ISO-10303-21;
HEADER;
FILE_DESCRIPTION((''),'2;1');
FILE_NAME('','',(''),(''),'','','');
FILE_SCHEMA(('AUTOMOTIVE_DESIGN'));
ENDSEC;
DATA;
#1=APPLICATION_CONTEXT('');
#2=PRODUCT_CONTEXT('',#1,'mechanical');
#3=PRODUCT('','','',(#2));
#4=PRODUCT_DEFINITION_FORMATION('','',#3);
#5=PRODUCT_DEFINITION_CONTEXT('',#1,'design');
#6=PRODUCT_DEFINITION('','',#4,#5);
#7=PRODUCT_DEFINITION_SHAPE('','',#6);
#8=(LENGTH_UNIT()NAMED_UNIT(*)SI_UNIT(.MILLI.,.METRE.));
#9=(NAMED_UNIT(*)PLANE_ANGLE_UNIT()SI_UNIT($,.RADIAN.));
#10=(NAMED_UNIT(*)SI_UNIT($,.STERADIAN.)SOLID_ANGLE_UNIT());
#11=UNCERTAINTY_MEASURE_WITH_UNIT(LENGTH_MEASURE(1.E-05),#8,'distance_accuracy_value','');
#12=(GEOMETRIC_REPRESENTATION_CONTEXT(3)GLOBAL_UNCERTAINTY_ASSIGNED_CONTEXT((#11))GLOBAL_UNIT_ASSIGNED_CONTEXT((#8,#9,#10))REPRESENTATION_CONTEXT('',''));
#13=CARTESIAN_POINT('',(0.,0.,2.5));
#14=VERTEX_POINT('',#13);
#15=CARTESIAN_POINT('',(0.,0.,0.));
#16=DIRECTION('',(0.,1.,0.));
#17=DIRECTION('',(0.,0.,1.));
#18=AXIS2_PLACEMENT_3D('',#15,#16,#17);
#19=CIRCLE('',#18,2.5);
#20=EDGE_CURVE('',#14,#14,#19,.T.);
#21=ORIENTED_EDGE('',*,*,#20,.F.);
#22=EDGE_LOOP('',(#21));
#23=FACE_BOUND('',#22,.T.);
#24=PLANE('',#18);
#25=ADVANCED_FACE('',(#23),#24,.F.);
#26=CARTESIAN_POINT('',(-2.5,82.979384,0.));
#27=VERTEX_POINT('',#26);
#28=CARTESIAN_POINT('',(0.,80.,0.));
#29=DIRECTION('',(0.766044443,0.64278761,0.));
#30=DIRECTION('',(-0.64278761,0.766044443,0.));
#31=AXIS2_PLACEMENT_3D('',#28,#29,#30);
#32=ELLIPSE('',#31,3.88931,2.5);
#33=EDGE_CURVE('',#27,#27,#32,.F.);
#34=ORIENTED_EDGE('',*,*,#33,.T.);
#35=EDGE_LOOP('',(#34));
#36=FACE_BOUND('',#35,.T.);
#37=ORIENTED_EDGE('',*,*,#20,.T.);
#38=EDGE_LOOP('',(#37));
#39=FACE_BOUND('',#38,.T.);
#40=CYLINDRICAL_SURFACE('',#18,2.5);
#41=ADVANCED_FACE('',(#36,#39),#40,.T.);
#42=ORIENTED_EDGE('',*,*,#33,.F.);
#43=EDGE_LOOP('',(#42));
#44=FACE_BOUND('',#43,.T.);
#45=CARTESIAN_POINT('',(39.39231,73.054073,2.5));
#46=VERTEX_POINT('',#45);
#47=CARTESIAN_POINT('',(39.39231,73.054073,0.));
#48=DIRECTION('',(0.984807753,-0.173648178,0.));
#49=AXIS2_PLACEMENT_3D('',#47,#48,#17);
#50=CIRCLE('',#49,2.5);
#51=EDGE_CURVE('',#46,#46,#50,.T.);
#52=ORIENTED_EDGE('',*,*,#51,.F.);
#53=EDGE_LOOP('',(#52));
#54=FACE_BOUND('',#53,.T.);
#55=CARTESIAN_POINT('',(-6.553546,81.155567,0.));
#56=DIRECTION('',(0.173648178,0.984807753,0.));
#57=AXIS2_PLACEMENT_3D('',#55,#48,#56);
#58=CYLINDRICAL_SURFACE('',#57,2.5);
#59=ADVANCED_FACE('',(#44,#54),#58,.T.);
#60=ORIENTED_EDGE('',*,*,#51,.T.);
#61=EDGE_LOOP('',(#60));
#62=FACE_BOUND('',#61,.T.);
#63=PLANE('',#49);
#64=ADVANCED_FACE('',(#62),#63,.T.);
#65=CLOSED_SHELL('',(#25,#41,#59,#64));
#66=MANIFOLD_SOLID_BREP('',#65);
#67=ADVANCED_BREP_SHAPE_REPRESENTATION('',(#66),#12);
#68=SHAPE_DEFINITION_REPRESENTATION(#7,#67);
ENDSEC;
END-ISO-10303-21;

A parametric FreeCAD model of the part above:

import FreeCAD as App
import Part
import Sketcher
from FreeCAD import Vector
Q = App.Units.Quantity

doc = App.newDocument("Part")
params = doc.addObject("Spreadsheet::Sheet", "Params")
for row, (alias, value) in enumerate([
    ("sketch1_diameter", "5 mm"),
    ("sketch2_height", "80 mm"),
    ("sketch2_length", "40 mm"),
], start=1):
    params.set(f"A{row}", alias)
    params.set(f"B{row}", "=" + value)
    params.setAlias(f"B{row}", alias)

body = doc.addObject("PartDesign::Body", "Body")

# Sketch on XZ plane
sketch1 = doc.addObject("Sketcher::SketchObject", "Sketch")
body.addObject(sketch1)
sketch1.AttachmentSupport = (doc.XZ_Plane, [""])
sketch1.MapMode = "FlatFace"
sketch1.addGeometry(Part.Circle(Vector(0, 0, 0), Vector(0, 0, 1), 2.5), False)
sketch1.addConstraint(Sketcher.Constraint("Coincident", 0, 3, -1, 1))
sketch1.addConstraint(Sketcher.Constraint("Diameter", 0, 5.0))
sketch1.setExpression("Constraints[1]", "Params.sketch1_diameter")

# Sketch on XY plane
sketch2 = doc.addObject("Sketcher::SketchObject", "Sketch001")
body.addObject(sketch2)
sketch2.AttachmentSupport = (doc.XY_Plane, [""])
sketch2.MapMode = "FlatFace"
sketch2.addGeometry(Part.LineSegment(Vector(0, 0, 0), Vector(0, 80, 0)), False)
sketch2.addGeometry(Part.LineSegment(Vector(0, 80, 0), Vector(39, 73, 0)), False)
sketch2.addConstraint(Sketcher.Constraint("Coincident", 0, 2, 1, 1))
sketch2.addConstraint(Sketcher.Constraint("Vertical", 0))
sketch2.addConstraint(Sketcher.Constraint("Coincident", 0, 1, -1, 1))
sketch2.addConstraint(Sketcher.Constraint("DistanceY", 0, 1, 0, 2, 80.0))
sketch2.addConstraint(Sketcher.Constraint("Angle", 1, Q("-10 deg")))
sketch2.addConstraint(Sketcher.Constraint("Distance", 1, 40.0))
sketch2.setExpression("Constraints[3]", "Params.sketch2_height")
sketch2.setExpression("Constraints[5]", "Params.sketch2_length")
doc.recompute()

additivepipe = doc.addObject("PartDesign::AdditivePipe", "AdditivePipe")
body.addObject(additivepipe)
additivepipe.Profile = sketch1
additivepipe.Spine = (sketch2, ["Edge1", "Edge2"])
additivepipe.Transition = "Right corner"

doc.recompute()
